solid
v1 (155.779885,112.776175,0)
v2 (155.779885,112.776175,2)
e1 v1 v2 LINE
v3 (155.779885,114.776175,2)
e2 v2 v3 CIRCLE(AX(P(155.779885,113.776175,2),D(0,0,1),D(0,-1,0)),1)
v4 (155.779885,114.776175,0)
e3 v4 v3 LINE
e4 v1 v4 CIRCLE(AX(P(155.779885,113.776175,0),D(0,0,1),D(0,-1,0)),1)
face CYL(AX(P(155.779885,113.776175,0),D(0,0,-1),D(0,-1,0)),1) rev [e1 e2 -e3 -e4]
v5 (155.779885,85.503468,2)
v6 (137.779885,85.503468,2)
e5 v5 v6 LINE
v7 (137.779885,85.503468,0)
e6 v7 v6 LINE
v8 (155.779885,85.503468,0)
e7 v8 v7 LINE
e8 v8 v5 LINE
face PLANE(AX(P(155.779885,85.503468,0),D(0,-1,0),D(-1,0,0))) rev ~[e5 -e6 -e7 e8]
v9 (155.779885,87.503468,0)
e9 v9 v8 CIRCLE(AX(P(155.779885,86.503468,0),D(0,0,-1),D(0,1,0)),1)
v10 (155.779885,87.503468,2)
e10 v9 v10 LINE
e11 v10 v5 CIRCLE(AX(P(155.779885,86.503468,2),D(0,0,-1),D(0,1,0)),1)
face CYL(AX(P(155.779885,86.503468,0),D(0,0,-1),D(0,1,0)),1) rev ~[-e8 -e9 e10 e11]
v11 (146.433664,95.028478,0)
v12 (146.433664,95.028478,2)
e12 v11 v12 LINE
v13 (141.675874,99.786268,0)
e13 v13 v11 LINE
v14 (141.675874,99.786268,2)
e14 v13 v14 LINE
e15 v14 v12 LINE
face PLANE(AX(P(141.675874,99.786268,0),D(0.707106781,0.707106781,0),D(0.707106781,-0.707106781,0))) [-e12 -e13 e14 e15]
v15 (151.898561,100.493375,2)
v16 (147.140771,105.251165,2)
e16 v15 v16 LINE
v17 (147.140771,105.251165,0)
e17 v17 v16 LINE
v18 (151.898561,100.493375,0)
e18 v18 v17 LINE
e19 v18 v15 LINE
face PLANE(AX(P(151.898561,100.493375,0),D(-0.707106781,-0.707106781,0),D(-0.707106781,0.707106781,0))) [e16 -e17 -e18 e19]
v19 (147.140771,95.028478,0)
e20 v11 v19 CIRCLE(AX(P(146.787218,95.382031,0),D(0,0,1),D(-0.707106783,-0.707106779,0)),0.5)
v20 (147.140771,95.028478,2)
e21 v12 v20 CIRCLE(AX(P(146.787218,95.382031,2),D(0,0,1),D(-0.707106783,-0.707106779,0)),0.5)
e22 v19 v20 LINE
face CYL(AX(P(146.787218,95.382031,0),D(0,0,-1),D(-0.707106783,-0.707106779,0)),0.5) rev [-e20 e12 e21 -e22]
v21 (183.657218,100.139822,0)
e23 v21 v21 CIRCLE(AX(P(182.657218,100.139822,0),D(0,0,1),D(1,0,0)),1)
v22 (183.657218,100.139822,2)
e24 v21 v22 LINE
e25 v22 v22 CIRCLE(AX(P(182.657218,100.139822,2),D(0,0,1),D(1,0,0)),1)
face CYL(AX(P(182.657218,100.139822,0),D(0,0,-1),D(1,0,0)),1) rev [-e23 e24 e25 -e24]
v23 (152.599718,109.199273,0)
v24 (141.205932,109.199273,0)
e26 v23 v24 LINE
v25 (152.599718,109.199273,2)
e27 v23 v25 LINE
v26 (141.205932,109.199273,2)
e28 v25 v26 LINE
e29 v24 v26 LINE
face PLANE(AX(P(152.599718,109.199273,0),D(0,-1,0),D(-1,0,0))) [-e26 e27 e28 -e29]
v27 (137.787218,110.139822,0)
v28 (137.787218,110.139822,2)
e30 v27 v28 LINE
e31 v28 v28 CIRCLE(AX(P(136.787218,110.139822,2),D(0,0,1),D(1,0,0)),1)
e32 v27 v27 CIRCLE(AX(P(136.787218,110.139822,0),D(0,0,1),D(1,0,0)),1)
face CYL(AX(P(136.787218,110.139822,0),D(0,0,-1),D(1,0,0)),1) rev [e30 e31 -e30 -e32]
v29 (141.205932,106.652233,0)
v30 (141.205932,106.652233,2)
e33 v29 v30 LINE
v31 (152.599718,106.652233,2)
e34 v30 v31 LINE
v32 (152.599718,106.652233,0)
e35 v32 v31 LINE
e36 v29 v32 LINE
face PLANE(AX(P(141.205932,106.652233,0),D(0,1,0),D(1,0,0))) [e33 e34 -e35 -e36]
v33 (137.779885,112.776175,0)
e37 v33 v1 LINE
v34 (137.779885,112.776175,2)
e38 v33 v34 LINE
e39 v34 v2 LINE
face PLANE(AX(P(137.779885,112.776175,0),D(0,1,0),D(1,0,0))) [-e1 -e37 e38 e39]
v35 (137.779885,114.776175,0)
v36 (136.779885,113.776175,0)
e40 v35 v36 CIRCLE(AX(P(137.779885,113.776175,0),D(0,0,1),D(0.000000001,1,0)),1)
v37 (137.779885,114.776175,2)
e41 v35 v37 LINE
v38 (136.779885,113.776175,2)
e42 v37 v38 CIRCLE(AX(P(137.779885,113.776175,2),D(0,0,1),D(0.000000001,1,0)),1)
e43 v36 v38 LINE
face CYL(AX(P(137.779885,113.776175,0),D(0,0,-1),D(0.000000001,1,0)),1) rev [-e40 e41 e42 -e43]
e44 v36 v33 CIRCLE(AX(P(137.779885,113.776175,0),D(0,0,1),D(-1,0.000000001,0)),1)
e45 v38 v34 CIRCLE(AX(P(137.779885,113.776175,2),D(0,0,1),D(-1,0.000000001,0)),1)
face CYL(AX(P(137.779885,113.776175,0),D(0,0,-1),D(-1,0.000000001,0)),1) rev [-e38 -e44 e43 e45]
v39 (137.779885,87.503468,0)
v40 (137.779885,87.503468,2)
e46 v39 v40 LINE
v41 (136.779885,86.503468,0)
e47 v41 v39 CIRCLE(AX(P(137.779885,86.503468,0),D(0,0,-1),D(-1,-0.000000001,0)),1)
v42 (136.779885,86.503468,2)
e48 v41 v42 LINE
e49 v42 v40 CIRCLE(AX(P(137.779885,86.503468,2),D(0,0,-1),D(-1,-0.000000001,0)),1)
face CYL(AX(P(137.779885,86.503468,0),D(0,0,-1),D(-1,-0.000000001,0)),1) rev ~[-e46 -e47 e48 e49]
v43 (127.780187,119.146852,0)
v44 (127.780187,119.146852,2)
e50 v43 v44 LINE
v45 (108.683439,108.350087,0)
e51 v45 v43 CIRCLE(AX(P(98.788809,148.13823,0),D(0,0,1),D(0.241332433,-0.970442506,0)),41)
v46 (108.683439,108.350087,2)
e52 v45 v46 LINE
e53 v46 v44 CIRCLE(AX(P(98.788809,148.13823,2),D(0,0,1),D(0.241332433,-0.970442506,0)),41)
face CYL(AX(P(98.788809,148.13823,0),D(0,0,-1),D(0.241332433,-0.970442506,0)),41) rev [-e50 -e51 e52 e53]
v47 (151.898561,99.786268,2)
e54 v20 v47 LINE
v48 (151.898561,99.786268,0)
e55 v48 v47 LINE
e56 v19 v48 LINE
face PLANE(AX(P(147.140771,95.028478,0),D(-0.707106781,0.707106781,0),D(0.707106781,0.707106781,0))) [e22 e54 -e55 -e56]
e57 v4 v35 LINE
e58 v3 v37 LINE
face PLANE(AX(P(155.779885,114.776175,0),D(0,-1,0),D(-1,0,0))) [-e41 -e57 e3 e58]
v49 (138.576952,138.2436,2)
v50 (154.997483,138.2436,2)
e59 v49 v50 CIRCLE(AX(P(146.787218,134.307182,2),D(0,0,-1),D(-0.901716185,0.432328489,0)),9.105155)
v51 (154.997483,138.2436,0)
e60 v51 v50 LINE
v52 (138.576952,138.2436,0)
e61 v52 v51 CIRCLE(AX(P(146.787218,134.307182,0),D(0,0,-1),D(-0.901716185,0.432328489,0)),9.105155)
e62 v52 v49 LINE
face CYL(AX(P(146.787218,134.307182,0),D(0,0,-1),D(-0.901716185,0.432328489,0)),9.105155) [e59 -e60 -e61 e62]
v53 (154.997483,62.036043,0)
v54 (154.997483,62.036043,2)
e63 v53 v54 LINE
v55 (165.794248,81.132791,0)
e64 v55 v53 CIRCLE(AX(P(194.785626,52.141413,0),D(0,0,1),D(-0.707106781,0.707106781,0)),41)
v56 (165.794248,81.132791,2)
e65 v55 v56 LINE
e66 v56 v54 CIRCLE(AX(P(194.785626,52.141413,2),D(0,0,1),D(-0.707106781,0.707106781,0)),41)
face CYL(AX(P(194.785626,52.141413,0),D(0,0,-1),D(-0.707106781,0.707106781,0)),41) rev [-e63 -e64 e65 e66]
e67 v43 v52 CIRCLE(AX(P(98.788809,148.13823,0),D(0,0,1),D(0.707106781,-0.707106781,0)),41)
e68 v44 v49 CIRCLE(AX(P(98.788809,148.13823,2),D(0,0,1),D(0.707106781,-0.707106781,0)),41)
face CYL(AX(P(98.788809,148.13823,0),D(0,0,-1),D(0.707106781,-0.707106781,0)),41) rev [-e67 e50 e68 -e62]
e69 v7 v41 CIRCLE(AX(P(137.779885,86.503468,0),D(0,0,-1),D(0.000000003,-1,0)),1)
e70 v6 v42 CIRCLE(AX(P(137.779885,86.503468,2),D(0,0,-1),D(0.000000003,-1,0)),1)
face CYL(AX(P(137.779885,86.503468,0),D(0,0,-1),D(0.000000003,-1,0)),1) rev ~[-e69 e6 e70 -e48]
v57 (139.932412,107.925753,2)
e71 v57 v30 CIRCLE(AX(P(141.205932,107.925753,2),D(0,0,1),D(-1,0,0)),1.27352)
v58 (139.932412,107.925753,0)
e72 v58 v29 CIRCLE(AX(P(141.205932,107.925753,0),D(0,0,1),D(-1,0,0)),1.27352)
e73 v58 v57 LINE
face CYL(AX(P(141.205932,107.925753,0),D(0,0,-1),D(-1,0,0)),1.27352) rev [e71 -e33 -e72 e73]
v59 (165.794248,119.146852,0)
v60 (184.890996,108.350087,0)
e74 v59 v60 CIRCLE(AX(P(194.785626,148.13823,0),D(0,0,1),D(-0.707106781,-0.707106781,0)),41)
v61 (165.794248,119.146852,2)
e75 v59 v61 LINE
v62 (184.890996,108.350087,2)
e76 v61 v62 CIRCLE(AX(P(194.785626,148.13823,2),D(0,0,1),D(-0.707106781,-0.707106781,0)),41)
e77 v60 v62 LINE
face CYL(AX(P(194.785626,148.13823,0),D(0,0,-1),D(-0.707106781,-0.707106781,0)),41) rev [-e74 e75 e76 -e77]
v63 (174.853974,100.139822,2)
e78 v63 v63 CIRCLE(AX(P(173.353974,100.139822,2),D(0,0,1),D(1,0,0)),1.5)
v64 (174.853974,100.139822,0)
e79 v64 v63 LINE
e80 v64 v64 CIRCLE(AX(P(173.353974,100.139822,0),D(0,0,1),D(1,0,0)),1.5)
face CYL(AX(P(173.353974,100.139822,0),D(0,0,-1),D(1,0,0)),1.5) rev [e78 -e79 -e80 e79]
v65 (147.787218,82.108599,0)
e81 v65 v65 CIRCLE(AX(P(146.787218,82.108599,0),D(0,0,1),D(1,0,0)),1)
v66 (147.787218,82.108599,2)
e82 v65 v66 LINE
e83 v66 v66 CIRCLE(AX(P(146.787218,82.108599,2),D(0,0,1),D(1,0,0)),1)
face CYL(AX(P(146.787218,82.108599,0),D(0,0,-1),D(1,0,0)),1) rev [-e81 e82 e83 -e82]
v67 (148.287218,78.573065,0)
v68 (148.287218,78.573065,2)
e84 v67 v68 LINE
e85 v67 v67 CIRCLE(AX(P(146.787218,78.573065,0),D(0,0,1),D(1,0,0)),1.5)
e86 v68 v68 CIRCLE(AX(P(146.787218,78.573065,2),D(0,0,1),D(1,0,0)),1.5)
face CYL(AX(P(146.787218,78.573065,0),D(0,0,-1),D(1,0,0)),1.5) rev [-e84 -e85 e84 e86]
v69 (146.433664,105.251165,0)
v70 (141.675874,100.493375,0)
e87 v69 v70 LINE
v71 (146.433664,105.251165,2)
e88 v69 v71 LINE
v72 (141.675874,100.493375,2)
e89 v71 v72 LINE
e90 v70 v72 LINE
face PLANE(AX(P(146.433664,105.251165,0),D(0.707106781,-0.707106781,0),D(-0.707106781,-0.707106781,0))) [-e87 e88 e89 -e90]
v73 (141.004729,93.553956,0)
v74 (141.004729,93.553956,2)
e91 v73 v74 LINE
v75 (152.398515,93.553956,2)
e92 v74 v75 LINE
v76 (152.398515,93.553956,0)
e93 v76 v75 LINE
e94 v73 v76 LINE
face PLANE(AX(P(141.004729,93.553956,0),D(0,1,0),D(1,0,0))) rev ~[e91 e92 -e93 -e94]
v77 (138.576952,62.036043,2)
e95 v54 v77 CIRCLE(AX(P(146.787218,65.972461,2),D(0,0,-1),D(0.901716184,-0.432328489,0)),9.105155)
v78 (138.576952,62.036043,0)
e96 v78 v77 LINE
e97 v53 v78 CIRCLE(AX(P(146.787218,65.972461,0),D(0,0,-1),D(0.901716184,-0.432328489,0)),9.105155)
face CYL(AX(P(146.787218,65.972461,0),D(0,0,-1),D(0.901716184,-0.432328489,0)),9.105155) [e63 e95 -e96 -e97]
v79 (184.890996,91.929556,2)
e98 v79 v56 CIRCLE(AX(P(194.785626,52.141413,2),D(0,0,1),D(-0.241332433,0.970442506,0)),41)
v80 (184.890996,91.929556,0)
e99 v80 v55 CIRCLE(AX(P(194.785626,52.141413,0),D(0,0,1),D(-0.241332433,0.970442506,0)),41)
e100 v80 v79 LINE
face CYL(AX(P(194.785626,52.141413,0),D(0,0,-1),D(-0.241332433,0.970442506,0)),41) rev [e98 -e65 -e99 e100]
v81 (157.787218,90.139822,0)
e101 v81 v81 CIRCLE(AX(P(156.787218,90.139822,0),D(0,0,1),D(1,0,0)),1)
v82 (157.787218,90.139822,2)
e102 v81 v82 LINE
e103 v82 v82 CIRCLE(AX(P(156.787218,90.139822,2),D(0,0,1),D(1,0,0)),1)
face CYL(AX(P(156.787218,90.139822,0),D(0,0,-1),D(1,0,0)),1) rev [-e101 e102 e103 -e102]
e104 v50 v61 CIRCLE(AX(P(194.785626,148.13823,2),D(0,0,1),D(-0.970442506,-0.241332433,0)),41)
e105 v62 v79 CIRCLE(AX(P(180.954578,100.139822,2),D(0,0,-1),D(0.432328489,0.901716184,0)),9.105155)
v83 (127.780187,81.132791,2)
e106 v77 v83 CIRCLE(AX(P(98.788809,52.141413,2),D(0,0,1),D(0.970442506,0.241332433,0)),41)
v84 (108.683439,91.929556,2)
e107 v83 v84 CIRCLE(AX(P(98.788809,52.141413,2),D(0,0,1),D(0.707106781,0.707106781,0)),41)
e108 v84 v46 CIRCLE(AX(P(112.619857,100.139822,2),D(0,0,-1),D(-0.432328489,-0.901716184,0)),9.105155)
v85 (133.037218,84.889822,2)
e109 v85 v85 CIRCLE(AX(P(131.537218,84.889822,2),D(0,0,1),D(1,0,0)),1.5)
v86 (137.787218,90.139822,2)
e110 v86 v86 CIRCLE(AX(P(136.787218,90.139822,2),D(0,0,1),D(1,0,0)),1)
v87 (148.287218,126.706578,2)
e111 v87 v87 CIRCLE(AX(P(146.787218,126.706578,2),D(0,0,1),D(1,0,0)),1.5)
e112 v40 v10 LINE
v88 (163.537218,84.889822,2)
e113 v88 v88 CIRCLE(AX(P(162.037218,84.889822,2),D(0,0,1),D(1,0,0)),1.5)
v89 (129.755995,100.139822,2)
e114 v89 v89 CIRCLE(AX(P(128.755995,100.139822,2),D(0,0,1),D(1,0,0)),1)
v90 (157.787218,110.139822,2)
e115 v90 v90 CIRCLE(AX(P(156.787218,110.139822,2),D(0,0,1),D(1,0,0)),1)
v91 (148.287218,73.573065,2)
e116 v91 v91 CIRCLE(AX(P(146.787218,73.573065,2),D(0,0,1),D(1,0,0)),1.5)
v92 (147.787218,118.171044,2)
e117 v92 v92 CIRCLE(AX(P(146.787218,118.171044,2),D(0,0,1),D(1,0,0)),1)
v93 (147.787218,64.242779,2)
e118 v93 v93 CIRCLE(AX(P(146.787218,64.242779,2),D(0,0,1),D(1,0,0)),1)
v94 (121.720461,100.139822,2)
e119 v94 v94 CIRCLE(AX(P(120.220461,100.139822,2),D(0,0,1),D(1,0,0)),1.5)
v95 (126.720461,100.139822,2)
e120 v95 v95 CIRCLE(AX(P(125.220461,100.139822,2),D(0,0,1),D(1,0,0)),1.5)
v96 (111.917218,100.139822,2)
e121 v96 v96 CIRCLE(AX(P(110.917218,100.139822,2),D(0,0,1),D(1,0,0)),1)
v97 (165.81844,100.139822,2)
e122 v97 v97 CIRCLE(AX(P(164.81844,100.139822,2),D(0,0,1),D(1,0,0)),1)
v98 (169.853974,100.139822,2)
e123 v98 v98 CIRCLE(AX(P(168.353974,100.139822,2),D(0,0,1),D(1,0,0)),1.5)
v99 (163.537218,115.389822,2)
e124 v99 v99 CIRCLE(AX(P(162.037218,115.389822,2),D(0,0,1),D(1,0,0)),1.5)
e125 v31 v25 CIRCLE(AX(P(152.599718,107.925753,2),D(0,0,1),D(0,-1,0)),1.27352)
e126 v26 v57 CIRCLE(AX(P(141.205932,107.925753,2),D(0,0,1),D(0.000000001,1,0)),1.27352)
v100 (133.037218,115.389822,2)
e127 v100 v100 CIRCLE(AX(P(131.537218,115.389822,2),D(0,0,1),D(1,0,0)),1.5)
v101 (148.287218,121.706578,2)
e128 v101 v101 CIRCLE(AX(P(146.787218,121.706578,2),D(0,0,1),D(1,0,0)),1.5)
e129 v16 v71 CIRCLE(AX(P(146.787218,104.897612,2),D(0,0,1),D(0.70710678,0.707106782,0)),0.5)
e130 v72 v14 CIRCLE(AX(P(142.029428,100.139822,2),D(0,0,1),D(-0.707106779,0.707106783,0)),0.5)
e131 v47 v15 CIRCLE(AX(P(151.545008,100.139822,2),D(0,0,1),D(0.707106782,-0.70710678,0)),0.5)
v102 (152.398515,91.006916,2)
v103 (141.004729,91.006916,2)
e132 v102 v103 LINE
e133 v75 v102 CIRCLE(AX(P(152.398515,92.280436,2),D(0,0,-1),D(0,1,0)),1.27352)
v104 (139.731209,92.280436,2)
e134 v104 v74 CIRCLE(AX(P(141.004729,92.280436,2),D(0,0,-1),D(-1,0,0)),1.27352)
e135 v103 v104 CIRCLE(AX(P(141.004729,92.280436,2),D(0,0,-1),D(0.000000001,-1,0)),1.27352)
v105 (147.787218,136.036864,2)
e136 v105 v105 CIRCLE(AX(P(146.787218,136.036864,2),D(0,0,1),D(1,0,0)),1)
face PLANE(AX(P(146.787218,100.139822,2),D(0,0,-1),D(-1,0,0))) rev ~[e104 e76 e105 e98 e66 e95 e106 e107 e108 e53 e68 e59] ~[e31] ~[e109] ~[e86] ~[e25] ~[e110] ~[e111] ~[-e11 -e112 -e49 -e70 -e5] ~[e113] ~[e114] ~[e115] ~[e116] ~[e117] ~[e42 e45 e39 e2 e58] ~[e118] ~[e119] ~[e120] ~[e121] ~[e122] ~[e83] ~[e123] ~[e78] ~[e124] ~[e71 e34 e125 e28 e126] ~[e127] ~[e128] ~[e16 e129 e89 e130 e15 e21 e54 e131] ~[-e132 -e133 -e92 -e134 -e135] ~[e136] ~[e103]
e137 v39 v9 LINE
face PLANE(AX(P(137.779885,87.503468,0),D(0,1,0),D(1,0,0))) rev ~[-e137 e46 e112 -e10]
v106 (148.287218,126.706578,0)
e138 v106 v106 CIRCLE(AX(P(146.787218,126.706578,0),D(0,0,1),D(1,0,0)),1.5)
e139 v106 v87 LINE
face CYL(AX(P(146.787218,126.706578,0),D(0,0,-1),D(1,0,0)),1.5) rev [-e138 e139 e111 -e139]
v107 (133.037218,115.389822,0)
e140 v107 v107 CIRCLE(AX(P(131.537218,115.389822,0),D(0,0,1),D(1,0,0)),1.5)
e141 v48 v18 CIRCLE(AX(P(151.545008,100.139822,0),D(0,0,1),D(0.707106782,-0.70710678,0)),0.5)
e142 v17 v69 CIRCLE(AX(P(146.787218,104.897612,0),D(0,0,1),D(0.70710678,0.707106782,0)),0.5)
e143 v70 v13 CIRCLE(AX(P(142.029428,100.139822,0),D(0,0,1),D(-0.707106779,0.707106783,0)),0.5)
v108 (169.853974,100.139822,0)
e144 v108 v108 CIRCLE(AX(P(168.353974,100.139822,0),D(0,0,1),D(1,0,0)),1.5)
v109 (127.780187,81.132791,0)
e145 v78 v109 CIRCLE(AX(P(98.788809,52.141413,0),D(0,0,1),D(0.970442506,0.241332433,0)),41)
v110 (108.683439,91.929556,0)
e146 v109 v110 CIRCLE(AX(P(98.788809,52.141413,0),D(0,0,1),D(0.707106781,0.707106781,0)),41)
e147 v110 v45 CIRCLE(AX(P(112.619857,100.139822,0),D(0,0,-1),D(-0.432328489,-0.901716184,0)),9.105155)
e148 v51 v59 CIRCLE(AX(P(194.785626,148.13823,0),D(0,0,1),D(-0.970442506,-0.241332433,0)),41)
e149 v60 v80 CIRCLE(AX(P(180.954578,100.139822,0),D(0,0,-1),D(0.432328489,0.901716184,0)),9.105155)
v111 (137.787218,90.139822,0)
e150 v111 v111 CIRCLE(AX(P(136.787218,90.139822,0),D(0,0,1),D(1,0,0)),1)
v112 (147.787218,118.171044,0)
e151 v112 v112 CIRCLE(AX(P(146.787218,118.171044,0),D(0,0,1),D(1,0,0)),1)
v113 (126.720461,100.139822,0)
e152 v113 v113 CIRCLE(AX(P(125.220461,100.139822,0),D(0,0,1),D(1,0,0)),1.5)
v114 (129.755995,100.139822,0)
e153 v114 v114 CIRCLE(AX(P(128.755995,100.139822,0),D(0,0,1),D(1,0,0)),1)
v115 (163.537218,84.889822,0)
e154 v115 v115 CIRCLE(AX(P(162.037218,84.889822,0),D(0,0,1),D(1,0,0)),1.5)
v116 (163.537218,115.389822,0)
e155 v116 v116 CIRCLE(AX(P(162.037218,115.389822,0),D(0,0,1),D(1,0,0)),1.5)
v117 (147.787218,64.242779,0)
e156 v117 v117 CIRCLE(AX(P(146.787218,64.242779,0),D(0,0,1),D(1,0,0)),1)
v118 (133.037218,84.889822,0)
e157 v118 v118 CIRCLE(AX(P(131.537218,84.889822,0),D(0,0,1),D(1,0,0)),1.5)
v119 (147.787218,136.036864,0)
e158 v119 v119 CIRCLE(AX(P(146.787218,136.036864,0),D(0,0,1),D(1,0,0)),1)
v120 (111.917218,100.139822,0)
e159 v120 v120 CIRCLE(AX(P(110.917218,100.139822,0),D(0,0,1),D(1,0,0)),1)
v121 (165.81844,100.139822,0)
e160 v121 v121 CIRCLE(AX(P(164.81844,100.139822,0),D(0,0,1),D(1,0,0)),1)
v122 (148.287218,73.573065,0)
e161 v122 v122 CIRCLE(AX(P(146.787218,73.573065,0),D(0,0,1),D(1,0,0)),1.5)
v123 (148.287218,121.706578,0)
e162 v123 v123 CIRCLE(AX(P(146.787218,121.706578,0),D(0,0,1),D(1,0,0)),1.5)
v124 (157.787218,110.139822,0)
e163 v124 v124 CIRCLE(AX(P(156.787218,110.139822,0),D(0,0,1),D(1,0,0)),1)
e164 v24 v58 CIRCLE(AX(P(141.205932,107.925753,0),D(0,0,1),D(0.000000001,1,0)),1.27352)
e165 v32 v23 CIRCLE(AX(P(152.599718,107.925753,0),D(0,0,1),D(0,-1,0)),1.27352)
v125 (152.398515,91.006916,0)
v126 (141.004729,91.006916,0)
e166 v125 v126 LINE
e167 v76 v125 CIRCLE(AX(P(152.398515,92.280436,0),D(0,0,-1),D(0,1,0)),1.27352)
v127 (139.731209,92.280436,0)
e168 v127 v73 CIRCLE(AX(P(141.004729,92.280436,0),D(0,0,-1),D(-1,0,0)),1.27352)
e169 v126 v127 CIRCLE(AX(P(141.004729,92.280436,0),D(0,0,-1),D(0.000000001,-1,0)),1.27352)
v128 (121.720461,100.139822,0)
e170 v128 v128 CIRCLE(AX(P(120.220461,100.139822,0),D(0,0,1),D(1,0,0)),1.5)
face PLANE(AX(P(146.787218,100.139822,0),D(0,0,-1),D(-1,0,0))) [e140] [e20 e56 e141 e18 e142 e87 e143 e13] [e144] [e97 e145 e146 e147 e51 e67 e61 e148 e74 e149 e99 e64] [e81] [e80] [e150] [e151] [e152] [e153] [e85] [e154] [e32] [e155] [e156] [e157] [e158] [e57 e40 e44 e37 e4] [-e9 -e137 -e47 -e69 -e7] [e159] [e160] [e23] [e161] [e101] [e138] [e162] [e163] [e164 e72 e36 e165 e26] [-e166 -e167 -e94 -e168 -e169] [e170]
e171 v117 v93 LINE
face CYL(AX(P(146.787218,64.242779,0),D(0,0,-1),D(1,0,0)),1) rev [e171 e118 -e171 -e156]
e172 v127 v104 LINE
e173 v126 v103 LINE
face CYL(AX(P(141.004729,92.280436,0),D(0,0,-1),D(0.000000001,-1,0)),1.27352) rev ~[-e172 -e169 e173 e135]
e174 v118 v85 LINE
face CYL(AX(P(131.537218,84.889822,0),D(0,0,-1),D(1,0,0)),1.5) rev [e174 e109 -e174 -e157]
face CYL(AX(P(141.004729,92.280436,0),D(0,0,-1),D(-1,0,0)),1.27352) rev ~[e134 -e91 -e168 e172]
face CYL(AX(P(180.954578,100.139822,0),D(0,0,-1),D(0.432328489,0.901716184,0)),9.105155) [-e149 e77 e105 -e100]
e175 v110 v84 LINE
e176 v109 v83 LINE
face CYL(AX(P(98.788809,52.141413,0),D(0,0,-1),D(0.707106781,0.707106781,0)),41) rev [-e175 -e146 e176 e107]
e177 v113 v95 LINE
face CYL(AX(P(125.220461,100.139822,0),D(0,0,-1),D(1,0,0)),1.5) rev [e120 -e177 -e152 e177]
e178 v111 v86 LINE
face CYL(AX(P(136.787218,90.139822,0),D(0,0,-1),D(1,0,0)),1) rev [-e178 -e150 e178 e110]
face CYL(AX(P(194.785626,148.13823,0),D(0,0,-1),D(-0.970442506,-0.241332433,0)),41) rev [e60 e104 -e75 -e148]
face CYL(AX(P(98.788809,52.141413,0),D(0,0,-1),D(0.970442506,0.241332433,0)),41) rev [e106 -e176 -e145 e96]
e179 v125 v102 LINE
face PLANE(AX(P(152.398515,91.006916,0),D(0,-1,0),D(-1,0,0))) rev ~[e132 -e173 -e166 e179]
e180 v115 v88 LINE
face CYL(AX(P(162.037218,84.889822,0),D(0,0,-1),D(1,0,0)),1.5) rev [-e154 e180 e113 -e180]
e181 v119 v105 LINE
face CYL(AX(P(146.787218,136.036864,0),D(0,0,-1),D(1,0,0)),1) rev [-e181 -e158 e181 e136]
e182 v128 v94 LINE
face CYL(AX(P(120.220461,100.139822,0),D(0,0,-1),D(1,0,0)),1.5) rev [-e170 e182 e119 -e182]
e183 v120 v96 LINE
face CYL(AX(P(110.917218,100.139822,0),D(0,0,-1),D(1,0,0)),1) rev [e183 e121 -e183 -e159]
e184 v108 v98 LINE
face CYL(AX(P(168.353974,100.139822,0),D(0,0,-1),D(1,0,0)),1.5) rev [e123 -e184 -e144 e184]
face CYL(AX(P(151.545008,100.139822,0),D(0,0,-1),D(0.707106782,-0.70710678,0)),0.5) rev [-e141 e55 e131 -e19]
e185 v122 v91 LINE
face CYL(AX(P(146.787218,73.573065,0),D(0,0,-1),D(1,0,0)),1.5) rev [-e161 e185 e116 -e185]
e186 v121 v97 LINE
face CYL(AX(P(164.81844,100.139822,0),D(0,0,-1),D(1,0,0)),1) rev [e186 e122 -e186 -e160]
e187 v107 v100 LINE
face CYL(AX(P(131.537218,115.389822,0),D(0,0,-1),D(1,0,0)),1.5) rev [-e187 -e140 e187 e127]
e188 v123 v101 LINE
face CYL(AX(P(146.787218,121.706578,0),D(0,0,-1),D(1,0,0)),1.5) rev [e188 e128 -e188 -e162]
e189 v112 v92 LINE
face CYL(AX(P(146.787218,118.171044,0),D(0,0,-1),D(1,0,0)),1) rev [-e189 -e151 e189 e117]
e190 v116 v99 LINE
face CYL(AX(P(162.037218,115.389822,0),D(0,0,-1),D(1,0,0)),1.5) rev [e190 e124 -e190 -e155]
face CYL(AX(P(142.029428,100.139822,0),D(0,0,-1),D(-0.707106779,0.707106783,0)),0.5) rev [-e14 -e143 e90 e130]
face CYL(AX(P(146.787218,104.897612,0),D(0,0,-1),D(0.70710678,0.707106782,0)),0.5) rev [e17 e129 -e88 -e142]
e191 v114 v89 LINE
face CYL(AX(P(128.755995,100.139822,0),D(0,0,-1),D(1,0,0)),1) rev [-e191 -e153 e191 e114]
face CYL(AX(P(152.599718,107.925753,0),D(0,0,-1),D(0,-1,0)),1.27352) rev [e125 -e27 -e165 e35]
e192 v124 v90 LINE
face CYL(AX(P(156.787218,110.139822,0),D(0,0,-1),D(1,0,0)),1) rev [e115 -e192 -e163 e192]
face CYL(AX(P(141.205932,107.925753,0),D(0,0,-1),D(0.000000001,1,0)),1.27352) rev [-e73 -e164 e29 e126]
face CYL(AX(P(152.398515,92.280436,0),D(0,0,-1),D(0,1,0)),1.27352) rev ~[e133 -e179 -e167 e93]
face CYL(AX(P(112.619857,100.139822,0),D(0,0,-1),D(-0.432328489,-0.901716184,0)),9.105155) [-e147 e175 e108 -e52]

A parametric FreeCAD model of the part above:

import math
import FreeCAD as App
import Part
import Sketcher
from FreeCAD import Vector
Q = App.Units.Quantity

doc = App.newDocument("Part")
body = doc.addObject("PartDesign::Body", "Body")

sketch1 = body.newObject("Sketcher::SketchObject", "Sketch")
sketch1.AttachmentSupport = (doc.getObject("XY_Plane"), [""])
sketch1.MapMode = "FlatFace"
sketch1.addGeometry(Part.ArcOfCircle(Part.Circle(Vector(194.79, 148.14, 0), Vector(0, 0, 1), 41), math.radians(-135), math.radians(-104)), False)
sketch1.addGeometry(Part.ArcOfCircle(Part.Circle(Vector(194.79, 148.14, 0), Vector(0, 0, 1), 41), math.radians(-166), math.radians(-135)), False)
sketch1.addGeometry(Part.ArcOfCircle(Part.Circle(Vector(146.79, 134.31, 0), Vector(0, 0, 1), 9.11), math.radians(26), math.radians(154)), False)
sketch1.addGeometry(Part.ArcOfCircle(Part.Circle(Vector(98.79, 148.14, 0), Vector(0, 0, 1), 41), math.radians(-45), math.radians(-14)), False)
sketch1.addGeometry(Part.ArcOfCircle(Part.Circle(Vector(98.79, 148.14, 0), Vector(0, 0, 1), 41), math.radians(-76), math.radians(-45)), False)
sketch1.addGeometry(Part.ArcOfCircle(Part.Circle(Vector(112.62, 100.14, 0), Vector(0, 0, 1), 9.11), math.radians(116), math.radians(244)), False)
sketch1.addGeometry(Part.ArcOfCircle(Part.Circle(Vector(98.79, 52.14, 0), Vector(0, 0, 1), 41), math.radians(45), math.radians(76)), False)
sketch1.addGeometry(Part.ArcOfCircle(Part.Circle(Vector(98.79, 52.14, 0), Vector(0, 0, 1), 41), math.radians(14), math.radians(45)), False)
sketch1.addGeometry(Part.ArcOfCircle(Part.Circle(Vector(146.79, 65.97, 0), Vector(0, 0, 1), 9.11), math.radians(-154), math.radians(-26)), False)
sketch1.addGeometry(Part.ArcOfCircle(Part.Circle(Vector(194.79, 52.14, 0), Vector(0, 0, 1), 41), math.radians(135), math.radians(166)), False)
sketch1.addGeometry(Part.ArcOfCircle(Part.Circle(Vector(194.79, 52.14, 0), Vector(0, 0, 1), 41), math.radians(104), math.radians(135)), False)
sketch1.addGeometry(Part.ArcOfCircle(Part.Circle(Vector(180.95, 100.14, 0), Vector(0, 0, 1), 9.11), math.radians(-64), math.radians(64)), False)
sketch1.addGeometry(Part.Circle(Vector(162.04, 84.89, 0), Vector(0, 0, 1), 1.5), False)
sketch1.addGeometry(Part.Circle(Vector(156.79, 90.14, 0), Vector(0, 0, 1), 1), False)
sketch1.addGeometry(Part.Circle(Vector(146.79, 64.24, 0), Vector(0, 0, 1), 1), False)
sketch1.addGeometry(Part.Circle(Vector(146.79, 73.57, 0), Vector(0, 0, 1), 1.5), False)
sketch1.addGeometry(Part.Circle(Vector(146.79, 78.57, 0), Vector(0, 0, 1), 1.5), False)
sketch1.addGeometry(Part.Circle(Vector(146.79, 82.11, 0), Vector(0, 0, 1), 1), False)
sketch1.addGeometry(Part.LineSegment(Vector(137.78, 87.5, 0), Vector(155.78, 87.5, 0)), False)
sketch1.addGeometry(Part.ArcOfCircle(Part.Circle(Vector(155.78, 86.5, 0), Vector(0, 0, 1), 1), math.radians(-90), math.radians(90)), False)
sketch1.addGeometry(Part.LineSegment(Vector(155.78, 85.5, 0), Vector(137.78, 85.5, 0)), False)
sketch1.addGeometry(Part.ArcOfCircle(Part.Circle(Vector(137.78, 86.5, 0), Vector(0, 0, 1), 1), math.radians(180), math.radians(270)), False)
sketch1.addGeometry(Part.ArcOfCircle(Part.Circle(Vector(137.78, 86.5, 0), Vector(0, 0, 1), 1), math.radians(90), math.radians(180)), False)
sketch1.addGeometry(Part.Circle(Vector(131.54, 84.89, 0), Vector(0, 0, 1), 1.5), False)
sketch1.addGeometry(Part.Circle(Vector(136.79, 90.14, 0), Vector(0, 0, 1), 1), False)
sketch1.addGeometry(Part.LineSegment(Vector(152.4, 91.01, 0), Vector(141, 91.01, 0)), False)
sketch1.addGeometry(Part.ArcOfCircle(Part.Circle(Vector(141, 92.28, 0), Vector(0, 0, 1), 1.27), math.radians(180), math.radians(270)), False)
sketch1.addGeometry(Part.ArcOfCircle(Part.Circle(Vector(141, 92.28, 0), Vector(0, 0, 1), 1.27), math.radians(90), math.radians(180)), False)
sketch1.addGeometry(Part.LineSegment(Vector(141, 93.55, 0), Vector(152.4, 93.55, 0)), False)
sketch1.addGeometry(Part.ArcOfCircle(Part.Circle(Vector(152.4, 92.28, 0), Vector(0, 0, 1), 1.27), math.radians(-90), math.radians(90)), False)
sketch1.addGeometry(Part.Circle(Vector(182.66, 100.14, 0), Vector(0, 0, 1), 1), False)
sketch1.addGeometry(Part.Circle(Vector(173.35, 100.14, 0), Vector(0, 0, 1), 1.5), False)
sketch1.addGeometry(Part.Circle(Vector(168.35, 100.14, 0), Vector(0, 0, 1), 1.5), False)
sketch1.addGeometry(Part.Circle(Vector(164.82, 100.14, 0), Vector(0, 0, 1), 1), False)
sketch1.addGeometry(Part.ArcOfCircle(Part.Circle(Vector(152.6, 107.93, 0), Vector(0, 0, 1), 1.27), math.radians(-90), math.radians(90)), False)
sketch1.addGeometry(Part.LineSegment(Vector(152.6, 106.65, 0), Vector(141.21, 106.65, 0)), False)
sketch1.addGeometry(Part.ArcOfCircle(Part.Circle(Vector(141.21, 107.93, 0), Vector(0, 0, 1), 1.27), math.radians(180), math.radians(270)), False)
sketch1.addGeometry(Part.ArcOfCircle(Part.Circle(Vector(141.21, 107.93, 0), Vector(0, 0, 1), 1.27), math.radians(90), math.radians(180)), False)
sketch1.addGeometry(Part.LineSegment(Vector(141.21, 109.2, 0), Vector(152.6, 109.2, 0)), False)
sketch1.addGeometry(Part.Circle(Vector(156.79, 110.14, 0), Vector(0, 0, 1), 1), False)
sketch1.addGeometry(Part.Circle(Vector(162.04, 115.39, 0), Vector(0, 0, 1), 1.5), False)
sketch1.addGeometry(Part.ArcOfCircle(Part.Circle(Vector(151.55, 100.14, 0), Vector(0, 0, 1), 0.5), math.radians(-45), math.radians(45)), False)
sketch1.addGeometry(Part.LineSegment(Vector(151.9, 99.79, 0), Vector(147.14, 95.03, 0)), False)
sketch1.addGeometry(Part.ArcOfCircle(Part.Circle(Vector(146.79, 95.38, 0), Vector(0, 0, 1), 0.5), math.radians(-135), math.radians(-45)), False)
sketch1.addGeometry(Part.LineSegment(Vector(146.43, 95.03, 0), Vector(141.68, 99.79, 0)), False)
sketch1.addGeometry(Part.ArcOfCircle(Part.Circle(Vector(142.03, 100.14, 0), Vector(0, 0, 1), 0.5), math.radians(135), math.radians(225)), False)
sketch1.addGeometry(Part.LineSegment(Vector(141.68, 100.49, 0), Vector(146.43, 105.25, 0)), False)
sketch1.addGeometry(Part.ArcOfCircle(Part.Circle(Vector(146.79, 104.9, 0), Vector(0, 0, 1), 0.5), math.radians(45), math.radians(135)), False)
sketch1.addGeometry(Part.LineSegment(Vector(147.14, 105.25, 0), Vector(151.9, 100.49, 0)), False)
sketch1.addGeometry(Part.Circle(Vector(128.76, 100.14, 0), Vector(0, 0, 1), 1), False)
sketch1.addGeometry(Part.ArcOfCircle(Part.Circle(Vector(137.78, 113.78, 0), Vector(0, 0, 1), 1), math.radians(180), math.radians(270)), False)
sketch1.addGeometry(Part.ArcOfCircle(Part.Circle(Vector(137.78, 113.78, 0), Vector(0, 0, 1), 1), math.radians(90), math.radians(180)), False)
sketch1.addGeometry(Part.LineSegment(Vector(137.78, 114.78, 0), Vector(155.78, 114.78, 0)), False)
sketch1.addGeometry(Part.ArcOfCircle(Part.Circle(Vector(155.78, 113.78, 0), Vector(0, 0, 1), 1), math.radians(-90), math.radians(90)), False)
sketch1.addGeometry(Part.LineSegment(Vector(155.78, 112.78, 0), Vector(137.78, 112.78, 0)), False)
sketch1.addGeometry(Part.Circle(Vector(146.79, 118.17, 0), Vector(0, 0, 1), 1), False)
sketch1.addGeometry(Part.Circle(Vector(136.79, 110.14, 0), Vector(0, 0, 1), 1), False)
sketch1.addGeometry(Part.Circle(Vector(131.54, 115.39, 0), Vector(0, 0, 1), 1.5), False)
sketch1.addGeometry(Part.Circle(Vector(125.22, 100.14, 0), Vector(0, 0, 1), 1.5), False)
sketch1.addGeometry(Part.Circle(Vector(120.22, 100.14, 0), Vector(0, 0, 1), 1.5), False)
sketch1.addGeometry(Part.Circle(Vector(110.92, 100.14, 0), Vector(0, 0, 1), 1), False)
sketch1.addGeometry(Part.Circle(Vector(146.79, 121.71, 0), Vector(0, 0, 1), 1.5), False)
sketch1.addGeometry(Part.Circle(Vector(146.79, 126.71, 0), Vector(0, 0, 1), 1.5), False)
sketch1.addGeometry(Part.Circle(Vector(146.79, 136.04, 0), Vector(0, 0, 1), 1), False)
sketch1.addConstraint(Sketcher.Constraint("Tangent", 0, 1, 1, 2))
sketch1.addConstraint(Sketcher.Constraint("Coincident", 1, 1, 2, 1))
sketch1.addConstraint(Sketcher.Constraint("Coincident", 2, 2, 3, 2))
sketch1.addConstraint(Sketcher.Constraint("Tangent", 3, 1, 4, 2))
sketch1.addConstraint(Sketcher.Constraint("Coincident", 4, 1, 5, 1))
sketch1.addConstraint(Sketcher.Constraint("Coincident", 5, 2, 6, 2))
sketch1.addConstraint(Sketcher.Constraint("Tangent", 6, 1, 7, 2))
sketch1.addConstraint(Sketcher.Constraint("Coincident", 7, 1, 8, 1))
sketch1.addConstraint(Sketcher.Constraint("Coincident", 8, 2, 9, 2))
sketch1.addConstraint(Sketcher.Constraint("Tangent", 9, 1, 10, 2))
sketch1.addConstraint(Sketcher.Constraint("Coincident", 10, 1, 11, 1))
sketch1.addConstraint(Sketcher.Constraint("Coincident", 11, 2, 0, 2))
sketch1.addConstraint(Sketcher.Constraint("Tangent", 18, 2, 19, 2))
sketch1.addConstraint(Sketcher.Constraint("Tangent", 19, 1, 20, 1))
sketch1.addConstraint(Sketcher.Constraint("Tangent", 20, 2, 21, 2))
sketch1.addConstraint(Sketcher.Constraint("Tangent", 21, 1, 22, 2))
sketch1.addConstraint(Sketcher.Constraint("Tangent", 22, 1, 18, 1))
sketch1.addConstraint(Sketcher.Constraint("Tangent", 25, 2, 26, 2))
sketch1.addConstraint(Sketcher.Constraint("Tangent", 26, 1, 27, 2))
sketch1.addConstraint(Sketcher.Constraint("Tangent", 27, 1, 28, 1))
sketch1.addConstraint(Sketcher.Constraint("Tangent", 28, 2, 29, 2))
sketch1.addConstraint(Sketcher.Constraint("Tangent", 29, 1, 25, 1))
sketch1.addConstraint(Sketcher.Constraint("Tangent", 34, 1, 35, 1))
sketch1.addConstraint(Sketcher.Constraint("Tangent", 35, 2, 36, 2))
sketch1.addConstraint(Sketcher.Constraint("Tangent", 36, 1, 37, 2))
sketch1.addConstraint(Sketcher.Constraint("Tangent", 37, 1, 38, 1))
sketch1.addConstraint(Sketcher.Constraint("Tangent", 38, 2, 34, 2))
sketch1.addConstraint(Sketcher.Constraint("Tangent", 41, 1, 42, 1))
sketch1.addConstraint(Sketcher.Constraint("Tangent", 42, 2, 43, 2))
sketch1.addConstraint(Sketcher.Constraint("Tangent", 43, 1, 44, 1))
sketch1.addConstraint(Sketcher.Constraint("Tangent", 44, 2, 45, 2))
sketch1.addConstraint(Sketcher.Constraint("Tangent", 45, 1, 46, 1))
sketch1.addConstraint(Sketcher.Constraint("Tangent", 46, 2, 47, 2))
sketch1.addConstraint(Sketcher.Constraint("Tangent", 47, 1, 48, 1))
sketch1.addConstraint(Sketcher.Constraint("Tangent", 48, 2, 41, 2))
sketch1.addConstraint(Sketcher.Constraint("Tangent", 50, 1, 51, 2))
sketch1.addConstraint(Sketcher.Constraint("Tangent", 51, 1, 52, 1))
sketch1.addConstraint(Sketcher.Constraint("Tangent", 52, 2, 53, 2))
sketch1.addConstraint(Sketcher.Constraint("Tangent", 53, 1, 54, 1))
sketch1.addConstraint(Sketcher.Constraint("Tangent", 54, 2, 50, 2))
sketch1.addConstraint(Sketcher.Constraint("Horizontal", 18))
sketch1.addConstraint(Sketcher.Constraint("Horizontal", 20))
sketch1.addConstraint(Sketcher.Constraint("Horizontal", 25))
sketch1.addConstraint(Sketcher.Constraint("Horizontal", 28))
sketch1.addConstraint(Sketcher.Constraint("Horizontal", 35))
sketch1.addConstraint(Sketcher.Constraint("Horizontal", 38))
sketch1.addConstraint(Sketcher.Constraint("Horizontal", 52))
sketch1.addConstraint(Sketcher.Constraint("Horizontal", 54))
sketch1.addConstraint(Sketcher.Constraint("Equal", 0, 1))
sketch1.addConstraint(Sketcher.Constraint("Equal", 1, 3))
sketch1.addConstraint(Sketcher.Constraint("Equal", 3, 4))
sketch1.addConstraint(Sketcher.Constraint("Equal", 2, 5))
sketch1.addConstraint(Sketcher.Constraint("Equal", 4, 6))
sketch1.addConstraint(Sketcher.Constraint("Equal", 6, 7))
sketch1.addConstraint(Sketcher.Constraint("Equal", 5, 8))
sketch1.addConstraint(Sketcher.Constraint("Equal", 7, 9))
sketch1.addConstraint(Sketcher.Constraint("Equal", 9, 10))
sketch1.addConstraint(Sketcher.Constraint("Equal", 8, 11))
sketch1.addConstraint(Sketcher.Constraint("Equal", 13, 14))
sketch1.addConstraint(Sketcher.Constraint("Equal", 12, 15))
sketch1.addConstraint(Sketcher.Constraint("Equal", 15, 16))
sketch1.addConstraint(Sketcher.Constraint("Equal", 14, 17))
sketch1.addConstraint(Sketcher.Constraint("Equal", 17, 19))
sketch1.addConstraint(Sketcher.Constraint("Equal", 19, 21))
sketch1.addConstraint(Sketcher.Constraint("Equal", 16, 23))
sketch1.addConstraint(Sketcher.Constraint("Equal", 22, 24))
sketch1.addConstraint(Sketcher.Constraint("Equal", 26, 27))
sketch1.addConstraint(Sketcher.Constraint("Equal", 24, 30))
sketch1.addConstraint(Sketcher.Constraint("Equal", 23, 31))
sketch1.addConstraint(Sketcher.Constraint("Equal", 31, 32))
sketch1.addConstraint(Sketcher.Constraint("Equal", 30, 33))
sketch1.addConstraint(Sketcher.Constraint("Equal", 29, 34))
sketch1.addConstraint(Sketcher.Constraint("Equal", 34, 36))
sketch1.addConstraint(Sketcher.Constraint("Equal", 33, 39))
sketch1.addConstraint(Sketcher.Constraint("Equal", 32, 40))
sketch1.addConstraint(Sketcher.Constraint("Equal", 41, 43))
sketch1.addConstraint(Sketcher.Constraint("Equal", 43, 45))
sketch1.addConstraint(Sketcher.Constraint("Equal", 45, 47))
sketch1.addConstraint(Sketcher.Constraint("Equal", 39, 49))
sketch1.addConstraint(Sketcher.Constraint("Equal", 49, 50))
sketch1.addConstraint(Sketcher.Constraint("Equal", 50, 51))
sketch1.addConstraint(Sketcher.Constraint("Equal", 53, 55))
sketch1.addConstraint(Sketcher.Constraint("Equal", 55, 56))
sketch1.addConstraint(Sketcher.Constraint("Equal", 40, 57))
sketch1.addConstraint(Sketcher.Constraint("Equal", 57, 58))
sketch1.addConstraint(Sketcher.Constraint("Equal", 58, 59))
sketch1.addConstraint(Sketcher.Constraint("Equal", 56, 60))
sketch1.addConstraint(Sketcher.Constraint("Equal", 59, 61))
sketch1.addConstraint(Sketcher.Constraint("Equal", 61, 62))
sketch1.addConstraint(Sketcher.Constraint("Equal", 60, 63))
sketch1.addConstraint(Sketcher.Constraint("Perpendicular", 42, 44))
sketch1.addConstraint(Sketcher.Constraint("Perpendicular", 44, 46))
sketch1.addConstraint(Sketcher.Constraint("Perpendicular", 46, 48))
sketch1.addConstraint(Sketcher.Constraint("Horizontal", 1, 3, 3, 3))
sketch1.addConstraint(Sketcher.Constraint("Horizontal", 7, 3, 9, 3))
sketch1.addConstraint(Sketcher.Constraint("Horizontal", 5, 3, 11, 3))
sketch1.addConstraint(Sketcher.Constraint("Horizontal", 12, 3, 23, 3))
sketch1.addConstraint(Sketcher.Constraint("Horizontal", 13, 3, 24, 3))
sketch1.addConstraint(Sketcher.Constraint("Horizontal", 11, 3, 30, 3))
sketch1.addConstraint(Sketcher.Constraint("Horizontal", 30, 3, 31, 3))
sketch1.addConstraint(Sketcher.Constraint("Horizontal", 31, 3, 32, 3))
sketch1.addConstraint(Sketcher.Constraint("Horizontal", 32, 3, 33, 3))
sketch1.addConstraint(Sketcher.Constraint("Horizontal", 33, 3, 41, 3))
sketch1.addConstraint(Sketcher.Constraint("Horizontal", 41, 3, 45, 3))
sketch1.addConstraint(Sketcher.Constraint("Horizontal", 45, 3, 49, 3))
sketch1.addConstraint(Sketcher.Constraint("Horizontal", 39, 3, 56, 3))
sketch1.addConstraint(Sketcher.Constraint("Horizontal", 40, 3, 57, 3))
sketch1.addConstraint(Sketcher.Constraint("Horizontal", 49, 3, 58, 3))
sketch1.addConstraint(Sketcher.Constraint("Horizontal", 58, 3, 59, 3))
sketch1.addConstraint(Sketcher.Constraint("Horizontal", 59, 3, 60, 3))
sketch1.addConstraint(Sketcher.Constraint("Horizontal", 1, 1, 2, 2))
sketch1.addConstraint(Sketcher.Constraint("Horizontal", 0, 1, 3, 1))
sketch1.addConstraint(Sketcher.Constraint("Horizontal", 7, 1, 8, 2))
sketch1.addConstraint(Sketcher.Constraint("Horizontal", 6, 1, 9, 1))
sketch1.addConstraint(Sketcher.Constraint("Horizontal", 5, 2, 10, 1))
sketch1.addConstraint(Sketcher.Constraint("Horizontal", 4, 1, 11, 2))
sketch1.addConstraint(Sketcher.Constraint("Horizontal", 22, 3, 21, 1))
sketch1.addConstraint(Sketcher.Constraint("Horizontal", 29, 3, 26, 1))
sketch1.addConstraint(Sketcher.Constraint("Horizontal", 37, 3, 36, 1))
sketch1.addConstraint(Sketcher.Constraint("Horizontal", 42, 2, 43, 1))
sketch1.addConstraint(Sketcher.Constraint("Horizontal", 53, 3, 50, 1))
sketch1.addConstraint(Sketcher.Constraint("Vertical", 4, 3, 6, 3))
sketch1.addConstraint(Sketcher.Constraint("Vertical", 8, 3, 14, 3))
sketch1.addConstraint(Sketcher.Constraint("Vertical", 14, 3, 15, 3))
sketch1.addConstraint(Sketcher.Constraint("Vertical", 15, 3, 16, 3))
sketch1.addConstraint(Sketcher.Constraint("Vertical", 16, 3, 17, 3))
sketch1.addConstraint(Sketcher.Constraint("Vertical", 13, 3, 39, 3))
sketch1.addConstraint(Sketcher.Constraint("Vertical", 12, 3, 40, 3))
sketch1.addConstraint(Sketcher.Constraint("Vertical", 17, 3, 43, 3))
sketch1.addConstraint(Sketcher.Constraint("Vertical", 22, 3, 50, 3))
sketch1.addConstraint(Sketcher.Constraint("Vertical", 19, 3, 53, 3))
sketch1.addConstraint(Sketcher.Constraint("Vertical", 47, 3, 55, 3))
sketch1.addConstraint(Sketcher.Constraint("Vertical", 24, 3, 56, 3))
sketch1.addConstraint(Sketcher.Constraint("Vertical", 23, 3, 57, 3))
sketch1.addConstraint(Sketcher.Constraint("Vertical", 55, 3, 61, 3))
sketch1.addConstraint(Sketcher.Constraint("Vertical", 61, 3, 62, 3))
sketch1.addConstraint(Sketcher.Constraint("Vertical", 62, 3, 63, 3))
sketch1.addConstraint(Sketcher.Constraint("Vertical", 4, 1, 5, 2))
sketch1.addConstraint(Sketcher.Constraint("Vertical", 3, 1, 6, 1))
sketch1.addConstraint(Sketcher.Constraint("Vertical", 2, 2, 7, 1))
sketch1.addConstraint(Sketcher.Constraint("Equal", 28, 35))
sketch1.addConstraint(Sketcher.Constraint("Diameter", 12, Q("3 mm")))
sketch1.addConstraint(Sketcher.Constraint("Diameter", 13, Q("2 mm")))
sketch1.addConstraint(Sketcher.Constraint("Radius", 0, Q("41 mm")))
sketch1.addConstraint(Sketcher.Constraint("Radius", 41, Q("0.5 mm")))
sketch1.addConstraint(Sketcher.Constraint("DistanceX", 18, 1, 18, 2, Q("18 mm")))
sketch1.addConstraint(Sketcher.Constraint("Radius", 26, Q("1.27352 mm")))
sketch1.addConstraint(Sketcher.Constraint("Radius", 2, Q("9.105155 mm")))
sketch1.addConstraint(Sketcher.Constraint("DistanceY", -1, 1, 17, 3, Q("82.108599 mm")))
sketch1.addConstraint(Sketcher.Constraint("DistanceY", -1, 1, 1, 1, Q("138.2436 mm")))
sketch1.addConstraint(Sketcher.Constraint("Distance", 42, Q("6.728531 mm")))
sketch1.addConstraint(Sketcher.Constraint("DistanceX", 25, 2, 25, 1, Q("11.393786 mm")))
sketch1.addConstraint(Sketcher.Constraint("DistanceY", -1, 1, 0, 3, Q("148.13823 mm")))
sketch1.addConstraint(Sketcher.Constraint("DistanceX", -1, 1, 3, 3, Q("98.788809 mm")))
sketch1.addConstraint(Sketcher.Constraint("DistanceY", -1, 1, 5, 3, Q("100.139822 mm")))
sketch1.addConstraint(Sketcher.Constraint("DistanceY", -1, 1, 8, 3, Q("65.972461 mm")))
sketch1.addConstraint(Sketcher.Constraint("DistanceX", -1, 1, 11, 3, Q("180.954578 mm")))
sketch1.addConstraint(Sketcher.Constraint("DistanceY", -1, 1, 12, 3, Q("84.889822 mm")))
sketch1.addConstraint(Sketcher.Constraint("DistanceY", -1, 1, 13, 3, Q("90.139822 mm")))
sketch1.addConstraint(Sketcher.Constraint("DistanceY", -1, 1, 14, 3, Q("64.242779 mm")))
sketch1.addConstraint(Sketcher.Constraint("DistanceY", -1, 1, 19, 3, Q("86.503468 mm")))
sketch1.addConstraint(Sketcher.Constraint("DistanceX", -1, 1, 26, 3, Q("141.004729 mm")))
sketch1.addConstraint(Sketcher.Constraint("DistanceX", -1, 1, 33, 3, Q("164.81844 mm")))
sketch1.addConstraint(Sketcher.Constraint("DistanceX", -1, 1, 34, 3, Q("152.599718 mm")))
sketch1.addConstraint(Sketcher.Constraint("DistanceY", -1, 1, 39, 3, Q("110.139822 mm")))
sketch1.addConstraint(Sketcher.Constraint("DistanceY", -1, 1, 40, 3, Q("115.389822 mm")))
sketch1.addConstraint(Sketcher.Constraint("DistanceX", -1, 1, 58, 3, Q("125.220461 mm")))
sketch1.addConstraint(Sketcher.Constraint("DistanceX", -1, 1, 59, 3, Q("120.220461 mm")))
sketch1.addConstraint(Sketcher.Constraint("DistanceY", -1, 1, 61, 3, Q("121.706578 mm")))
sketch1.addConstraint(Sketcher.Constraint("DistanceY", -1, 1, 62, 3, Q("126.706578 mm")))
sketch1.addConstraint(Sketcher.Constraint("DistanceY", -1, 1, 0, 1, Q("119.146852 mm")))
sketch1.addConstraint(Sketcher.Constraint("DistanceX", -1, 1, 12, 3, Q("162.037218 mm")))
sketch1.addConstraint(Sketcher.Constraint("DistanceX", -1, 1, 13, 3, Q("156.787218 mm")))
sketch1.addConstraint(Sketcher.Constraint("DistanceY", -1, 1, 15, 3, Q("73.573065 mm")))
sketch1.addConstraint(Sketcher.Constraint("DistanceY", -1, 1, 16, 3, Q("78.573065 mm")))
sketch1.addConstraint(Sketcher.Constraint("DistanceX", -1, 1, 19, 3, Q("155.779885 mm")))
sketch1.addConstraint(Sketcher.Constraint("DistanceX", -1, 1, 23, 3, Q("131.537218 mm")))
sketch1.addConstraint(Sketcher.Constraint("DistanceX", -1, 1, 24, 3, Q("136.787218 mm")))
sketch1.addConstraint(Sketcher.Constraint("DistanceY", -1, 1, 26, 3, Q("92.280436 mm")))
sketch1.addConstraint(Sketcher.Constraint("DistanceX", -1, 1, 30, 3, Q("182.657218 mm")))
sketch1.addConstraint(Sketcher.Constraint("DistanceX", -1, 1, 31, 3, Q("173.353974 mm")))
sketch1.addConstraint(Sketcher.Constraint("DistanceX", -1, 1, 32, 3, Q("168.353974 mm")))
sketch1.addConstraint(Sketcher.Constraint("DistanceY", -1, 1, 34, 3, Q("107.925753 mm")))
sketch1.addConstraint(Sketcher.Constraint("DistanceX", -1, 1, 49, 3, Q("128.755995 mm")))
sketch1.addConstraint(Sketcher.Constraint("DistanceY", -1, 1, 50, 3, Q("113.776175 mm")))
sketch1.addConstraint(Sketcher.Constraint("DistanceY", -1, 1, 55, 3, Q("118.171044 mm")))
sketch1.addConstraint(Sketcher.Constraint("DistanceX", -1, 1, 60, 3, Q("110.917218 mm")))
sketch1.addConstraint(Sketcher.Constraint("DistanceY", -1, 1, 63, 3, Q("136.036864 mm")))
pad1 = body.newObject("PartDesign::Pad", "Pad")
pad1.Profile = sketch1
pad1.Length = 2

doc.recompute()
